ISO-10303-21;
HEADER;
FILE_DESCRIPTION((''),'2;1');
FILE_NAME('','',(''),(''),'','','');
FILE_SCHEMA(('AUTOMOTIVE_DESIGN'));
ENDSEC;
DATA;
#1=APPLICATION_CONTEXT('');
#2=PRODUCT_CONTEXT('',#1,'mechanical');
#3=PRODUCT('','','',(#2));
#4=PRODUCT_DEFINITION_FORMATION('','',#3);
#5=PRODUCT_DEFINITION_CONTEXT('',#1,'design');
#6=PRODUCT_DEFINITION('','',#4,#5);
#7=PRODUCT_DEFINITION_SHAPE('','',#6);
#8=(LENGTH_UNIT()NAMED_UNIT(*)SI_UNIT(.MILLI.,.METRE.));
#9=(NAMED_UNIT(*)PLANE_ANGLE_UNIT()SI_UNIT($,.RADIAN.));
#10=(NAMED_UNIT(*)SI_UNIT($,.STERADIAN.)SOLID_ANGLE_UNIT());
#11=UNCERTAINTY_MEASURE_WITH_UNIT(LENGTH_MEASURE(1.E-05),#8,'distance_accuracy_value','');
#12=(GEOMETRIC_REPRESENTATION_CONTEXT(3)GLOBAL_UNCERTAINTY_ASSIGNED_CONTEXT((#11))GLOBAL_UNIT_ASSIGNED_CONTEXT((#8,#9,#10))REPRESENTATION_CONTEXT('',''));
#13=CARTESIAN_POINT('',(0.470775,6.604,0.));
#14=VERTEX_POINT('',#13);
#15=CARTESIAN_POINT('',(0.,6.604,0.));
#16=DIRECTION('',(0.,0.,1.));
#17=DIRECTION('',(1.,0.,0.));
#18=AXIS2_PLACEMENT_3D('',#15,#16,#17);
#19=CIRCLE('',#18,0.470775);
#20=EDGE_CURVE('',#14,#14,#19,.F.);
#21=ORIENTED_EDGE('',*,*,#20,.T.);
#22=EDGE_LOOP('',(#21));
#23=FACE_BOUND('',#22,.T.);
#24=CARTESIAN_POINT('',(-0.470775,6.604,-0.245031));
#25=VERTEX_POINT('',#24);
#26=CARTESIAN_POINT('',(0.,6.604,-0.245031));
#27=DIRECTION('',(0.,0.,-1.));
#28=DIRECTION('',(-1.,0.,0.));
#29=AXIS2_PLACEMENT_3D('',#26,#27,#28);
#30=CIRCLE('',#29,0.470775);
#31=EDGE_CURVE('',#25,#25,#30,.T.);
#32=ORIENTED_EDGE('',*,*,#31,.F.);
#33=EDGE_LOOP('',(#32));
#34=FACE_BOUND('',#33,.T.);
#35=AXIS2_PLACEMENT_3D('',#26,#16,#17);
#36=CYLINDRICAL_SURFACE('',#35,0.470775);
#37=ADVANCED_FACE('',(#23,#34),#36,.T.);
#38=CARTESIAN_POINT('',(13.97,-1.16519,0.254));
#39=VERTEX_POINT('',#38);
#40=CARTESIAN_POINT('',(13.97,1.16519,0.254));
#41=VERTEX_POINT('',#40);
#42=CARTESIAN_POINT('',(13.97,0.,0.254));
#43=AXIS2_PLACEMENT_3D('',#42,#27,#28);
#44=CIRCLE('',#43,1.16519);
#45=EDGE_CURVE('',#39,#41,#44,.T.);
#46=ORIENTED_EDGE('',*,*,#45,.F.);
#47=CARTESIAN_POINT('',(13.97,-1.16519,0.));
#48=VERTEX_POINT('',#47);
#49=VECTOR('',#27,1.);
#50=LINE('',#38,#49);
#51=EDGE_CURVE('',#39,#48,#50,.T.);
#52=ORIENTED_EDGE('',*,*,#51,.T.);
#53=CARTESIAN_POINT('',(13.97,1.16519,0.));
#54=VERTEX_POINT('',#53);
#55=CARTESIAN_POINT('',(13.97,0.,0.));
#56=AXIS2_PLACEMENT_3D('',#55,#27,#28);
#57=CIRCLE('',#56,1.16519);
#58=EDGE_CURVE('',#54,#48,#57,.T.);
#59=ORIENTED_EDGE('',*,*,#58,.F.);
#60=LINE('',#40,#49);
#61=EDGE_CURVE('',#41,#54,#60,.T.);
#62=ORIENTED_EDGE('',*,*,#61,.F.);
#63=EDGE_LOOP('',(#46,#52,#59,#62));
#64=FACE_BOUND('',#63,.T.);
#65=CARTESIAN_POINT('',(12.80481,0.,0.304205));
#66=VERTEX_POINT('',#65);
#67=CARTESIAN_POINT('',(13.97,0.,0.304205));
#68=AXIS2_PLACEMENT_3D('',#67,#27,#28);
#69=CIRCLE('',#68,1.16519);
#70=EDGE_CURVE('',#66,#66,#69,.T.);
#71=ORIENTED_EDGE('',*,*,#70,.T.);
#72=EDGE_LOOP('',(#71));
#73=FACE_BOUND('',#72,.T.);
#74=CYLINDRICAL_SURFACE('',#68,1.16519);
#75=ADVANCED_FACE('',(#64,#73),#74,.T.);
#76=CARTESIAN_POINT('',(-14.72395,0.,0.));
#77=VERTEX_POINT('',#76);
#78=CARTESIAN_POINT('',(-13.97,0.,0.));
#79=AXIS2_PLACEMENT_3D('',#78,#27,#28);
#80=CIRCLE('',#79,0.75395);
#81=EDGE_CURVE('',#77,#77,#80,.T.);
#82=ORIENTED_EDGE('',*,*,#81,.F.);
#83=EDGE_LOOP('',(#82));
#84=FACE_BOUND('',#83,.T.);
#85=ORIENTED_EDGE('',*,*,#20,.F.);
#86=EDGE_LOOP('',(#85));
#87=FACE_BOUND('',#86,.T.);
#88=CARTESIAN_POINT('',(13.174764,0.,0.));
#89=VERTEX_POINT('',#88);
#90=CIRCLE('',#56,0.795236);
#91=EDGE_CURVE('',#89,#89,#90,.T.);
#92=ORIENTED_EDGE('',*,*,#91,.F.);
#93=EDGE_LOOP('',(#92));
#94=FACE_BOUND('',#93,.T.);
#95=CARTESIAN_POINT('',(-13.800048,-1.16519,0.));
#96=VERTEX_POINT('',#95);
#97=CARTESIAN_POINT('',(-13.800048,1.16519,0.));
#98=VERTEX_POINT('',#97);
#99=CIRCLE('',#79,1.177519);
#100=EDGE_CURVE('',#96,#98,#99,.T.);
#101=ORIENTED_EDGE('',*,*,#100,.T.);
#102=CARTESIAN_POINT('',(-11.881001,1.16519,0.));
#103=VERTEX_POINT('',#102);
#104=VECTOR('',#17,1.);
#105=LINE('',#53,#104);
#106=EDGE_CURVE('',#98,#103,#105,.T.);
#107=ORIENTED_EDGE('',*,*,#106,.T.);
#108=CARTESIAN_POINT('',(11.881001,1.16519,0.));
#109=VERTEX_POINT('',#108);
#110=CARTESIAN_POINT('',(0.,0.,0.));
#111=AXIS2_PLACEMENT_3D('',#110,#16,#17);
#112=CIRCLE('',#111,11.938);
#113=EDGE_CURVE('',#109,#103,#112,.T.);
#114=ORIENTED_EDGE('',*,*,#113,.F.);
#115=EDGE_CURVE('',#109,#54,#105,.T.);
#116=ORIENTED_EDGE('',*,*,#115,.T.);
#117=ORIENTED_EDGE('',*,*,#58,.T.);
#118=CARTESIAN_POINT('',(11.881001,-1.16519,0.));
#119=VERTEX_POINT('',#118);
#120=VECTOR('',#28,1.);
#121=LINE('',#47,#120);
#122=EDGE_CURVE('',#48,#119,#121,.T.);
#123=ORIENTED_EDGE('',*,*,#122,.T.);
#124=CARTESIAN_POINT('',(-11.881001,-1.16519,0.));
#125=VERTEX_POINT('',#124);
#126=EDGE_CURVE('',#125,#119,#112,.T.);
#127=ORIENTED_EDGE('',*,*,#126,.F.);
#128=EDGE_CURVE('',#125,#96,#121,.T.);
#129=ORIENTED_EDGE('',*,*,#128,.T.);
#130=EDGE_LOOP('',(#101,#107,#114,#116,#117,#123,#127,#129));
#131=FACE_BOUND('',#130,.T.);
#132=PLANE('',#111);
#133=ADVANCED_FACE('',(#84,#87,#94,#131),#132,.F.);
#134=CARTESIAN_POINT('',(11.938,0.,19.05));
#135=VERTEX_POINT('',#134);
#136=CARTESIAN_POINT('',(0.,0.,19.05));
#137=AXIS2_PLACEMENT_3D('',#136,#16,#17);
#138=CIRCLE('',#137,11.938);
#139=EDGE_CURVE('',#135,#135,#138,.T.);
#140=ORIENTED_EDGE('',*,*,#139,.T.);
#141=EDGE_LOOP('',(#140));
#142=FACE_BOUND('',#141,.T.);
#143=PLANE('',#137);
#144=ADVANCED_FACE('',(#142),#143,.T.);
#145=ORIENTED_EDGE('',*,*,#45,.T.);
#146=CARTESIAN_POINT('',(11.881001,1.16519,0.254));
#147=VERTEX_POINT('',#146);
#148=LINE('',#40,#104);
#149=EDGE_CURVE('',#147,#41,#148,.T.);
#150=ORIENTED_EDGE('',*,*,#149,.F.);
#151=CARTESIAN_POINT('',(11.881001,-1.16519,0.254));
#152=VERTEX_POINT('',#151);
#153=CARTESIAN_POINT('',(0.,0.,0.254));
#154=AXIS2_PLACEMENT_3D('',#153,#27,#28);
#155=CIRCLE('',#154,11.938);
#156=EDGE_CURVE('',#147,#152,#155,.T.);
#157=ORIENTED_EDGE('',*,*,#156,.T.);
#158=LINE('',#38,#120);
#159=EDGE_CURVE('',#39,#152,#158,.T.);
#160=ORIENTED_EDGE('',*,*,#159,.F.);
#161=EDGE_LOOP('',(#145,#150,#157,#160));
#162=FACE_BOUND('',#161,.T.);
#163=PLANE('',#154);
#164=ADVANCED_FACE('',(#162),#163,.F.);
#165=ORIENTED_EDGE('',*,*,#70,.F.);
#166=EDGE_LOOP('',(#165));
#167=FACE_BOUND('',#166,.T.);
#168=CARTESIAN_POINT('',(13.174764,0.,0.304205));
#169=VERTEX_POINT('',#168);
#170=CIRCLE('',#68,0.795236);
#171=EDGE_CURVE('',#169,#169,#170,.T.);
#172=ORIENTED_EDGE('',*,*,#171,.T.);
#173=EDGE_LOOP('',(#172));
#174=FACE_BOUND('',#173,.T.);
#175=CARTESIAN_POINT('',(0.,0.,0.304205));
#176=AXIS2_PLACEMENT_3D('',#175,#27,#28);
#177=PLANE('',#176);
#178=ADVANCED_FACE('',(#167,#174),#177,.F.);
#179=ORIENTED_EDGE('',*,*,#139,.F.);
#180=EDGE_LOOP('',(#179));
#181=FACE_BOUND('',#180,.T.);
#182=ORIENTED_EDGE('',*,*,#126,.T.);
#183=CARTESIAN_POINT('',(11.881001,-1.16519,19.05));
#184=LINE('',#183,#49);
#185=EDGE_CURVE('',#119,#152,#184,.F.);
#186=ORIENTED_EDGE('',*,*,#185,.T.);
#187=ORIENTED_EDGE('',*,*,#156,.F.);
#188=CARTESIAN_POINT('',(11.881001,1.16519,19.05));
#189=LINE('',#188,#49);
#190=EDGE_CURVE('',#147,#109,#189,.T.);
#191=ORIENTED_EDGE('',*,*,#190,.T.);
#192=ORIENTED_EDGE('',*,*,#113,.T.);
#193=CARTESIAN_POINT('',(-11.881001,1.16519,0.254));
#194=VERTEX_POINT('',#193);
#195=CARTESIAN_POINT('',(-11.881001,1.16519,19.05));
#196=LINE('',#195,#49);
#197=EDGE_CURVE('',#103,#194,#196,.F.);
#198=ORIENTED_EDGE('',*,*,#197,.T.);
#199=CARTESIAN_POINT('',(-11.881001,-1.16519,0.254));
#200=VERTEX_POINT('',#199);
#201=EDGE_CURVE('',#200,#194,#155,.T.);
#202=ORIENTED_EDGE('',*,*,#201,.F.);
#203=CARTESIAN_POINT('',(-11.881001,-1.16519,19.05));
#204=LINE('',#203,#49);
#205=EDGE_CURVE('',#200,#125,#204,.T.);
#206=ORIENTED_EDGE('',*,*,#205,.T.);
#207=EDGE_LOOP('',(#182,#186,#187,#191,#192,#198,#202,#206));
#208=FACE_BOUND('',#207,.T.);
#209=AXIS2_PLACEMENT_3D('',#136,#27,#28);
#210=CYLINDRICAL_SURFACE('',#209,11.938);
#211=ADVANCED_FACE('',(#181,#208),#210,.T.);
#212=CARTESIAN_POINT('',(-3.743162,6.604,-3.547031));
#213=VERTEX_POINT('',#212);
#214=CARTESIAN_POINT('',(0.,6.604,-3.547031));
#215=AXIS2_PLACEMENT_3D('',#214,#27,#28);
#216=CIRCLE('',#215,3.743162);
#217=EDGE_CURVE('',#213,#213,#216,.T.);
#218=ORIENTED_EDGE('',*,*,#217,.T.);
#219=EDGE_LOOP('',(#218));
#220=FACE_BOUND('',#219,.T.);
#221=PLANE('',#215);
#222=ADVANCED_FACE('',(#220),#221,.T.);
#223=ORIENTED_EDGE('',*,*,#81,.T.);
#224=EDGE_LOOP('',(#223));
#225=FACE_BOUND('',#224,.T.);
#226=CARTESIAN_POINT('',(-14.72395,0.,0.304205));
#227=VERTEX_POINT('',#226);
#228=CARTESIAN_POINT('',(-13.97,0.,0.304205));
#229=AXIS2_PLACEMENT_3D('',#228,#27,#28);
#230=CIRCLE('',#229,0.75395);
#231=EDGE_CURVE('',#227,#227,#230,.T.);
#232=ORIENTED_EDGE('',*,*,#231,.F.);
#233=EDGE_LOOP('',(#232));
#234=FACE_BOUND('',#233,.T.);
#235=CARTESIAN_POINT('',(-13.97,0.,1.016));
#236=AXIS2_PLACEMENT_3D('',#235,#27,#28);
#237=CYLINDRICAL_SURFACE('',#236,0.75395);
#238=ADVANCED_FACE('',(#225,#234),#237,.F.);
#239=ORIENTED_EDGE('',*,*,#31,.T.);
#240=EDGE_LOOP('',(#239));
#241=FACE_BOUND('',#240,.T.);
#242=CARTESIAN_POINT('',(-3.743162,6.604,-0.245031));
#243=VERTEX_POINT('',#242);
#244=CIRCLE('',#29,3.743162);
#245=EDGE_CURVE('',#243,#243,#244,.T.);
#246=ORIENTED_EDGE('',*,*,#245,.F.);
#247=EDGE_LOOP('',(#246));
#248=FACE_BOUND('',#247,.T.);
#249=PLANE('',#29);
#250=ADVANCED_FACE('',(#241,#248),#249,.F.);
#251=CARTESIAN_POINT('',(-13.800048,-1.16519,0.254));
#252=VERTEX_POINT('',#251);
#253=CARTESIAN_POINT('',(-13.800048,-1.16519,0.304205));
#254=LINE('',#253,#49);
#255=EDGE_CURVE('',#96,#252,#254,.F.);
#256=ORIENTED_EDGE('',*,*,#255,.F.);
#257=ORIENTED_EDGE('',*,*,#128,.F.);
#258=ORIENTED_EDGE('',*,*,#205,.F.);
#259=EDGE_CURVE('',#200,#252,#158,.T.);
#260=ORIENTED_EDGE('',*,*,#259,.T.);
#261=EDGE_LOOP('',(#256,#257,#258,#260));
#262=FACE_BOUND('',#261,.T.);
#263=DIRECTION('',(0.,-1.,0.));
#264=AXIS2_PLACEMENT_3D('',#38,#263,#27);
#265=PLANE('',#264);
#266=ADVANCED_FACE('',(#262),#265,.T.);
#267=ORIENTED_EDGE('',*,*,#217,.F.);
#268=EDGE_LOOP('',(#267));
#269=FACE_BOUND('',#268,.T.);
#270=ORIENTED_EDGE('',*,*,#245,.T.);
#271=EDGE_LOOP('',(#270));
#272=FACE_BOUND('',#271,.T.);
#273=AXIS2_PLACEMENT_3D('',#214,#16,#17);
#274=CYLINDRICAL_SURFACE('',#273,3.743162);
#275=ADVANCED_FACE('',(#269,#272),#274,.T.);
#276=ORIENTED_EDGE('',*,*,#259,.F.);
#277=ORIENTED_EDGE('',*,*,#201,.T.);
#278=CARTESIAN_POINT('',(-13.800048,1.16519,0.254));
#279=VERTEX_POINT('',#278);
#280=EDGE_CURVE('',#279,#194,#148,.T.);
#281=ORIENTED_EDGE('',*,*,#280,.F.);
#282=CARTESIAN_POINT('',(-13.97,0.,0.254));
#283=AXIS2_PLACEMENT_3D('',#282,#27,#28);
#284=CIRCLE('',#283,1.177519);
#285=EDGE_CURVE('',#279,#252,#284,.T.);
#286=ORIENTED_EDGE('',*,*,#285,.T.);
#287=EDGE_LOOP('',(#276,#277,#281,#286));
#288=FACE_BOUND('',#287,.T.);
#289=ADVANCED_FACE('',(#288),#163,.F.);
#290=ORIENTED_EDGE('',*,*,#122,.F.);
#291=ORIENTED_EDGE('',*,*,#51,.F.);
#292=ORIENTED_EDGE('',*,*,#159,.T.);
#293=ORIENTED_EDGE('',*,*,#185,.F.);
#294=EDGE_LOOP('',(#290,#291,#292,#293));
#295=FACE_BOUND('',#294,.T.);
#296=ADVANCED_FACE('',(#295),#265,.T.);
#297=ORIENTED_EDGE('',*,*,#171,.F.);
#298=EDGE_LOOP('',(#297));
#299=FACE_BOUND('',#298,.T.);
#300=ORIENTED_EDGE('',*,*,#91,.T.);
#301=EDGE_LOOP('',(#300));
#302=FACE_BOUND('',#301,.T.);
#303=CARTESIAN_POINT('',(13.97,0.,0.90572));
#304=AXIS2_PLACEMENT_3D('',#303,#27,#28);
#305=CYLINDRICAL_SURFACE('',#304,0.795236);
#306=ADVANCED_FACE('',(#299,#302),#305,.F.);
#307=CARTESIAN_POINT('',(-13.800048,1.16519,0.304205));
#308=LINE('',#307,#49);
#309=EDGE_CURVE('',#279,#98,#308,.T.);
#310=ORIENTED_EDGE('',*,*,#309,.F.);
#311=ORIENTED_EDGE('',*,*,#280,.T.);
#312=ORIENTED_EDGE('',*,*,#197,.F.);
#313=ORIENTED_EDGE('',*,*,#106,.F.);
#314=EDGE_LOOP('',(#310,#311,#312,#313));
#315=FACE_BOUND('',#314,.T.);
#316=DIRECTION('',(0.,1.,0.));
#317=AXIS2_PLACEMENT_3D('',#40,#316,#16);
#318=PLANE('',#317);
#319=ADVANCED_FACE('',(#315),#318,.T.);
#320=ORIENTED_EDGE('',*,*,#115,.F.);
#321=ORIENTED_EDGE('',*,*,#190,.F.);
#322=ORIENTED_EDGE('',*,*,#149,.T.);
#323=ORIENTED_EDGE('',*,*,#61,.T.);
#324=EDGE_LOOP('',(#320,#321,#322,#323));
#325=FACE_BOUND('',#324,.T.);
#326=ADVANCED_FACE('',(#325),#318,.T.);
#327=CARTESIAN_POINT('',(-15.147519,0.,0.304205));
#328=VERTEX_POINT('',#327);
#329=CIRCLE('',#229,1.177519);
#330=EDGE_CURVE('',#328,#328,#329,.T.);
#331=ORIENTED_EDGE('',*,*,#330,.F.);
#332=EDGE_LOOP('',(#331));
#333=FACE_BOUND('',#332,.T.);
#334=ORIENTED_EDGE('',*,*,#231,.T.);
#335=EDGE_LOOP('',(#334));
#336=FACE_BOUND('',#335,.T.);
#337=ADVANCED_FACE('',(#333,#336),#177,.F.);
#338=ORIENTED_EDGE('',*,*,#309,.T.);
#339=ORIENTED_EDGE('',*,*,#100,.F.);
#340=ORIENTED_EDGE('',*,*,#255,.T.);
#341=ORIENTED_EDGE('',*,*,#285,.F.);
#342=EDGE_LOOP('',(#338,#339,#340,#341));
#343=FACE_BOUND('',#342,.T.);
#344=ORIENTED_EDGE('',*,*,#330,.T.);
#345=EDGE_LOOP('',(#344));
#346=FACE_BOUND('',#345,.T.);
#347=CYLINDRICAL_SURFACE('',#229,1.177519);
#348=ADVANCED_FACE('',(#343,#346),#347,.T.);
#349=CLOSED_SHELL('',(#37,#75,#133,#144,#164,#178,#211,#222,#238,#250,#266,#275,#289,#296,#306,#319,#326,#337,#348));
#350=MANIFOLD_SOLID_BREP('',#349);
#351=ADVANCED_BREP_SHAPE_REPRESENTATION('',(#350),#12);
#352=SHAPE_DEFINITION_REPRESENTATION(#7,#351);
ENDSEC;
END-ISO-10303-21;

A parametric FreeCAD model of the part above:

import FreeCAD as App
import Part
import Sketcher

V = App.Vector
Q = App.Units.Quantity


def add_polygon(sketch, points):
    """Adds a closed chain of lines whose ends are joined by coincident constraints."""
    first, n = sketch.GeometryCount, len(points)
    for a, b in zip(points, points[1:] + points[:1]):
        sketch.addGeometry(Part.LineSegment(App.Vector(*a, 0), App.Vector(*b, 0)), False)
    for i in range(n):
        sketch.addConstraint(Sketcher.Constraint("Coincident", first + i, 2, first + (i + 1) % n, 1))

doc = App.newDocument("Part")
body = doc.addObject("PartDesign::Body", "Body")

sketch1 = body.newObject("Sketcher::SketchObject", "Sketch")
sketch1.AttachmentSupport = (doc.getObject("XY_Plane"), [""])
sketch1.MapMode = "FlatFace"
sketch1.addGeometry(Part.Circle(V(0, 0, 0), V(0, 0, 1), 12), False)
sketch1.addConstraint(Sketcher.Constraint("Coincident", 0, 3, -1, 1))
sketch1.addConstraint(Sketcher.Constraint("Diameter", 0, Q("0.94 in")))
pad1 = body.newObject("PartDesign::Pad", "Pad")
pad1.Profile = sketch1
pad1.Length = Q("0.75 in")
body2 = doc.addObject("PartDesign::Body", "Body001")

sketch2 = body2.newObject("Sketcher::SketchObject", "Sketch001")
sketch2.AttachmentSupport = (doc.getObject("XY_Plane001"), [""])
sketch2.MapMode = "FlatFace"
sketch2.addGeometry(Part.Circle(V(-14, 0, 0), V(0, 0, 1), 1.2), False)
sketch2.addConstraint(Sketcher.Constraint("PointOnObject", 0, 3, -1))
sketch2.addConstraint(Sketcher.Constraint("DistanceX", 0, 3, -1, 1, Q("0.55 in")))
sketch2.addConstraint(Sketcher.Constraint("Diameter", 0, Q("2.355038 mm")))
pad2 = body2.newObject("PartDesign::Pad", "Pad001")
pad2.Profile = sketch2
pad2.Length = 0.304205
body3 = doc.addObject("PartDesign::Body", "Body002")

sketch3 = body3.newObject("Sketcher::SketchObject", "Sketch002")
sketch3.AttachmentSupport = (doc.getObject("XY_Plane002"), [""])
sketch3.MapMode = "FlatFace"
sketch3.addGeometry(Part.Circle(V(14, 0, 0), V(0, 0, 1), 1.2), False)
sketch3.addConstraint(Sketcher.Constraint("PointOnObject", 0, 3, -1))
sketch3.addConstraint(Sketcher.Constraint("DistanceX", -1, 1, 0, 3, Q("0.55 in")))
sketch3.addConstraint(Sketcher.Constraint("Diameter", 0, Q("2.33038 mm")))
pad3 = body3.newObject("PartDesign::Pad", "Pad002")
pad3.Profile = sketch3
pad3.Length = 0.304205
body.AllowCompound = True
doc.recompute()

boolean = body.newObject("PartDesign::Boolean", "Boolean")
boolean.Type = "Fuse"
boolean.addObjects([body2])
doc.recompute()

boolean2 = body.newObject("PartDesign::Boolean", "Boolean001")
boolean2.Type = "Fuse"
boolean2.addObjects([body3])

sketch4 = body.newObject("Sketcher::SketchObject", "Sketch003")
sketch4.AttachmentSupport = (doc.getObject("XY_Plane"), [""])
sketch4.MapMode = "FlatFace"
add_polygon(sketch4, [(14, 1.2), (14, -1.2), (-14.1, -1.2), (-14.1, 1.2)])
sketch4.addConstraint(Sketcher.Constraint("Vertical", 0))
sketch4.addConstraint(Sketcher.Constraint("Horizontal", 1))
sketch4.addConstraint(Sketcher.Constraint("Vertical", 2))
sketch4.addConstraint(Sketcher.Constraint("Horizontal", 3))
sketch4.addConstraint(Sketcher.Constraint("DistanceX", -1, 1, 0, 2, Q("0.55 in")))
sketch4.addConstraint(Sketcher.Constraint("DistanceY", 0, 2, 0, 1, Q("2.33038 mm")))
sketch4.addConstraint(Sketcher.Constraint("DistanceX", 1, 2, 1, 1, Q("28.109952 mm")))
sketch4.addConstraint(Sketcher.Constraint("DistanceY", 0, 2, -1, 1, Q("1.16519 mm")))
pad4 = body.newObject("PartDesign::Pad", "Pad003")
pad4.Profile = sketch4
pad4.Length = Q("0.01 in")

sketch5 = body.newObject("Sketcher::SketchObject", "Sketch004")
sketch5.AttachmentSupport = (doc.getObject("XY_Plane"), [""])
sketch5.MapMode = "FlatFace"
sketch5.addGeometry(Part.Circle(V(14, 0, 0), V(0, 0, 1), 0.8), False)
sketch5.addConstraint(Sketcher.Constraint("PointOnObject", 0, 3, -1))
sketch5.addConstraint(Sketcher.Constraint("DistanceX", -1, 1, 0, 3, Q("0.55 in")))
sketch5.addConstraint(Sketcher.Constraint("Diameter", 0, Q("1.590473 mm")))
pocket1 = body.newObject("PartDesign::Pocket", "Pocket")
pocket1.Profile = sketch5
pocket1.Length = 0.90572
pocket1.Reversed = True

sketch6 = body.newObject("Sketcher::SketchObject", "Sketch005")
sketch6.AttachmentSupport = (doc.getObject("XY_Plane"), [""])
sketch6.MapMode = "FlatFace"
sketch6.addGeometry(Part.Circle(V(-14, 0, 0), V(0, 0, 1), 0.8), False)
sketch6.addConstraint(Sketcher.Constraint("PointOnObject", 0, 3, -1))
sketch6.addConstraint(Sketcher.Constraint("Diameter", 0, Q("1.5079 mm")))
sketch6.addConstraint(Sketcher.Constraint("DistanceX", 0, 3, -1, 1, Q("0.55 in")))
pocket2 = body.newObject("PartDesign::Pocket", "Pocket001")
pocket2.Profile = sketch6
pocket2.Length = Q("0.04 in")
pocket2.Reversed = True

sketch7 = body.newObject("Sketcher::SketchObject", "Sketch006")
sketch7.AttachmentSupport = (doc.getObject("XY_Plane"), [""])
sketch7.MapMode = "FlatFace"
sketch7.addGeometry(Part.Circle(V(0, 6.6, 0), V(0, 0, 1), 0.47), False)
sketch7.addConstraint(Sketcher.Constraint("PointOnObject", 0, 3, -2))
sketch7.addConstraint(Sketcher.Constraint("DistanceY", -1, 1, 0, 3, Q("0.26 in")))
sketch7.addConstraint(Sketcher.Constraint("Diameter", 0, Q("0.941549 mm")))
pad5 = body.newObject("PartDesign::Pad", "Pad004")
pad5.Profile = sketch7
pad5.Length = 0.245031
pad5.Reversed = True

sketch8 = body.newObject("Sketcher::SketchObject", "Sketch007")
sketch8.AttachmentSupport = (doc.getObject("XY_Plane"), [""])
sketch8.MapMode = "FlatFace"
sketch8.AttachmentOffset = App.Placement(V(0, 0, -0.245031), App.Rotation())
sketch8.addGeometry(Part.Circle(V(0, 6.6, 0), V(0, 0, 1), 3.7), False)
sketch8.addConstraint(Sketcher.Constraint("PointOnObject", 0, 3, -2))
sketch8.addConstraint(Sketcher.Constraint("DistanceY", -1, 1, 0, 3, Q("0.26 in")))
sketch8.addConstraint(Sketcher.Constraint("Diameter", 0, Q("7.486323 mm")))
pad6 = body.newObject("PartDesign::Pad", "Pad005")
pad6.Profile = sketch8
pad6.Length = Q("0.13 in")
pad6.Reversed = True

doc.recompute()
